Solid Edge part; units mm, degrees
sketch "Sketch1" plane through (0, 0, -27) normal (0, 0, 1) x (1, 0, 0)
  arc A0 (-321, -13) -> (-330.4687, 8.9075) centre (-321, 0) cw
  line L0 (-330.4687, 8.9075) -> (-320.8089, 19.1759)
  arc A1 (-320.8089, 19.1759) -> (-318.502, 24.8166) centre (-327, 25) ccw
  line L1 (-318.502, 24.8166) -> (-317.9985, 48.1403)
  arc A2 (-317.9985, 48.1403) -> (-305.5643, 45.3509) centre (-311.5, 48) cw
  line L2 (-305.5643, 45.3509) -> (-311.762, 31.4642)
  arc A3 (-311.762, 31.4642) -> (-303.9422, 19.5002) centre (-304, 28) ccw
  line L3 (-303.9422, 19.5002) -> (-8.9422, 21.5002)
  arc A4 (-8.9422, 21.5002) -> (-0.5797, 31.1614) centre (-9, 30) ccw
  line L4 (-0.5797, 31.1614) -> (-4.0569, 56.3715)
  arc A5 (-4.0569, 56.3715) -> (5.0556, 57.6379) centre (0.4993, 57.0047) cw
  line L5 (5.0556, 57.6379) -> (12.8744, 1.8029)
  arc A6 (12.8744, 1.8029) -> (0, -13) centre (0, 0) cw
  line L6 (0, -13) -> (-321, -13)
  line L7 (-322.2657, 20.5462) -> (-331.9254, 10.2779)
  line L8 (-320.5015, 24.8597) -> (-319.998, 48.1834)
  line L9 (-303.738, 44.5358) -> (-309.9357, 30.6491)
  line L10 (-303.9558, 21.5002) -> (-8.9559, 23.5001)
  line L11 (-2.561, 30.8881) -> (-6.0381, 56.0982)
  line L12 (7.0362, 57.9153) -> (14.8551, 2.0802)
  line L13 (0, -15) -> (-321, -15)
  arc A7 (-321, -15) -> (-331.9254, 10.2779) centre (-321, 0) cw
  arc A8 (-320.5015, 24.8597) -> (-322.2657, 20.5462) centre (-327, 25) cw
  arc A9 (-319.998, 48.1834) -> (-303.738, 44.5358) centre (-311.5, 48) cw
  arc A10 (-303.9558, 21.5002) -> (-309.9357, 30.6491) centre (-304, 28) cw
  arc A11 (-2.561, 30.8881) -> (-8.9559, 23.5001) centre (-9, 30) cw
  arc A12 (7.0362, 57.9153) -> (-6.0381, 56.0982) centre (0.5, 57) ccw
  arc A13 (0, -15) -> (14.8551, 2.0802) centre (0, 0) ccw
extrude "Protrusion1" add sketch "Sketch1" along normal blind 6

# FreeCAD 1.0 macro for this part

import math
import FreeCAD as App
import Part
import Sketcher

doc = App.newDocument("Part")
body = doc.addObject("PartDesign::Body", "Body")

# Sketch on XY plane
sketch1 = body.newObject("Sketcher::SketchObject", "Sketch")
sketch1.AttachmentSupport = (doc.getObject("XY_Plane"), [""])
sketch1.MapMode = "FlatFace"
sketch1.AttachmentOffset = App.Placement(App.Vector(0, 0, -27), App.Rotation())
sketch1.addGeometry([
    Part.ArcOfCircle(Part.Circle(App.Vector(-327, 25, 0), App.Vector(0, 0, 1), 6.5), math.radians(-43), math.radians(-1)),  # 0
    Part.LineSegment(App.Vector(-322.3, 20.5, 0), App.Vector(-331.9, 10.3, 0)),  # 1
    Part.ArcOfCircle(Part.Circle(App.Vector(-321, 0, 0), App.Vector(0, 0, 1), 15), math.radians(137), math.radians(270)),  # 2
    Part.LineSegment(App.Vector(-321, -15, 0), App.Vector(0, -15, 0)),  # 3
    Part.ArcOfCircle(Part.Circle(App.Vector(0, 0, 0), App.Vector(0, 0, 1), 15), math.radians(-90), math.radians(8)),  # 4
    Part.LineSegment(App.Vector(14.9, 2.1, 0), App.Vector(7, 57.9, 0)),  # 5
    Part.ArcOfCircle(Part.Circle(App.Vector(0.5, 57, 0), App.Vector(0, 0, 1), 6.6), math.radians(8), math.radians(188)),  # 6
    Part.LineSegment(App.Vector(-6, 56.1, 0), App.Vector(-2.6, 30.9, 0)),  # 7
    Part.ArcOfCircle(Part.Circle(App.Vector(-9, 30, 0), App.Vector(0, 0, 1), 6.5), math.radians(-90), math.radians(8)),  # 8
    Part.LineSegment(App.Vector(-9, 23.5, 0), App.Vector(-304, 21.5, 0)),  # 9
    Part.ArcOfCircle(Part.Circle(App.Vector(-304, 28, 0), App.Vector(0, 0, 1), 6.5), math.radians(156), math.radians(270)),  # 10
    Part.LineSegment(App.Vector(-309.9, 30.6, 0), App.Vector(-303.7, 44.5, 0)),  # 11
    Part.ArcOfCircle(Part.Circle(App.Vector(-311.5, 48, 0), App.Vector(0, 0, 1), 8.5), math.radians(-24), math.radians(179)),  # 12
    Part.LineSegment(App.Vector(-320, 48.2, 0), App.Vector(-320.5, 24.9, 0)),  # 13
    Part.LineSegment(App.Vector(0, -13, 0), App.Vector(-321, -13, 0)),  # 14
    Part.ArcOfCircle(Part.Circle(App.Vector(-321, 0, 0), App.Vector(0, 0, 1), 13), math.radians(137), math.radians(270)),  # 15
    Part.LineSegment(App.Vector(-330.5, 8.9, 0), App.Vector(-320.8, 19.2, 0)),  # 16
    Part.ArcOfCircle(Part.Circle(App.Vector(-327, 25, 0), App.Vector(0, 0, 1), 8.5), math.radians(-43), math.radians(-1)),  # 17
    Part.LineSegment(App.Vector(-318.5, 24.8, 0), App.Vector(-318, 48.1, 0)),  # 18
    Part.ArcOfCircle(Part.Circle(App.Vector(-311.5, 48, 0), App.Vector(0, 0, 1), 6.5), math.radians(-24), math.radians(179)),  # 19
    Part.LineSegment(App.Vector(-305.6, 45.4, 0), App.Vector(-311.8, 31.5, 0)),  # 20
    Part.ArcOfCircle(Part.Circle(App.Vector(-304, 28, 0), App.Vector(0, 0, 1), 8.5), math.radians(156), math.radians(270)),  # 21
    Part.LineSegment(App.Vector(-303.9, 19.5, 0), App.Vector(-8.9, 21.5, 0)),  # 22
    Part.ArcOfCircle(Part.Circle(App.Vector(-9, 30, 0), App.Vector(0, 0, 1), 8.5), math.radians(-90), math.radians(8)),  # 23
    Part.LineSegment(App.Vector(-0.6, 31.2, 0), App.Vector(-4.1, 56.4, 0)),  # 24
    Part.ArcOfCircle(Part.Circle(App.Vector(0.5, 57, 0), App.Vector(0, 0, 1), 4.6), math.radians(8), math.radians(188)),  # 25
    Part.LineSegment(App.Vector(5.1, 57.6, 0), App.Vector(12.9, 1.8, 0)),  # 26
    Part.ArcOfCircle(Part.Circle(App.Vector(0, 0, 0), App.Vector(0, 0, 1), 13), math.radians(-90), math.radians(8)),  # 27
], False)
sketch1.addConstraint([
    Sketcher.Constraint("Tangent", 0, 1, 1, 1),
    Sketcher.Constraint("Tangent", 1, 2, 2, 1),
    Sketcher.Constraint("Tangent", 2, 2, 3, 1),
    Sketcher.Constraint("Tangent", 3, 2, 4, 1),
    Sketcher.Constraint("Tangent", 4, 2, 5, 1),
    Sketcher.Constraint("Tangent", 5, 2, 6, 1),
    Sketcher.Constraint("Tangent", 6, 2, 7, 1),
    Sketcher.Constraint("Tangent", 7, 2, 8, 2),
    Sketcher.Constraint("Tangent", 8, 1, 9, 1),
    Sketcher.Constraint("Tangent", 9, 2, 10, 2),
    Sketcher.Constraint("Tangent", 10, 1, 11, 1),
    Sketcher.Constraint("Tangent", 11, 2, 12, 1),
    Sketcher.Constraint("Tangent", 12, 2, 13, 1),
    Sketcher.Constraint("Tangent", 13, 2, 0, 2),
    Sketcher.Constraint("Tangent", 14, 2, 15, 2),
    Sketcher.Constraint("Tangent", 15, 1, 16, 1),
    Sketcher.Constraint("Tangent", 16, 2, 17, 1),
    Sketcher.Constraint("Tangent", 17, 2, 18, 1),
    Sketcher.Constraint("Tangent", 18, 2, 19, 2),
    Sketcher.Constraint("Tangent", 19, 1, 20, 1),
    Sketcher.Constraint("Tangent", 20, 2, 21, 1),
    Sketcher.Constraint("Tangent", 21, 2, 22, 1),
    Sketcher.Constraint("Tangent", 22, 2, 23, 1),
    Sketcher.Constraint("Tangent", 23, 2, 24, 1),
    Sketcher.Constraint("Coincident", 24, 2, 25, 2),
    Sketcher.Constraint("Coincident", 25, 1, 26, 1),
    Sketcher.Constraint("Tangent", 26, 2, 27, 2),
    Sketcher.Constraint("Tangent", 27, 1, 14, 1),
    Sketcher.Constraint("Horizontal", 3),
    Sketcher.Constraint("Horizontal", 14),
    Sketcher.Constraint("Coincident", 4, 3, -1, 1),
    Sketcher.Constraint("Coincident", 27, 3, -1, 1),
    Sketcher.Constraint("Coincident", 15, 3, 2, 3),
    Sketcher.Constraint("Coincident", 17, 3, 0, 3),
    Sketcher.Constraint("Coincident", 19, 3, 12, 3),
    Sketcher.Constraint("Coincident", 21, 3, 10, 3),
    Sketcher.Constraint("Coincident", 23, 3, 8, 3),
    Sketcher.Constraint("Equal", 2, 4),
    Sketcher.Constraint("Equal", 0, 8),
    Sketcher.Constraint("Equal", 8, 10),
    Sketcher.Constraint("Equal", 12, 17),
    Sketcher.Constraint("Equal", 10, 19),
    Sketcher.Constraint("Equal", 17, 21),
    Sketcher.Constraint("Equal", 21, 23),
    Sketcher.Constraint("Parallel", 1, 16),
    Sketcher.Constraint("Parallel", 7, 24),
    Sketcher.Constraint("Parallel", 5, 26),
    Sketcher.Constraint("Horizontal", 9, 2, 22, 2),
    Sketcher.Constraint("Equal", 7, 24),
    Sketcher.Constraint("Equal", 5, 26),
    Sketcher.Constraint("Radius", 2, 15.0),
    Sketcher.Constraint("Radius", 15, 13.0),
    Sketcher.Constraint("Radius", 0, 6.5),
    Sketcher.Constraint("Radius", 6, 6.6),
    Sketcher.Constraint("DistanceX", 3, 1, 3, 2, 321.0),
    Sketcher.Constraint("DistanceX", 0, 3, -1, 1, 327.0),
    Sketcher.Constraint("DistanceY", -1, 1, 0, 3, 25.0),
    Sketcher.Constraint("DistanceY", -1, 1, 6, 3, 57.0),
    Sketcher.Constraint("DistanceX", 8, 3, -1, 1, 9.0),
    Sketcher.Constraint("DistanceY", -1, 1, 8, 3, 30.0),
    Sketcher.Constraint("DistanceX", 10, 3, -1, 1, 304.0),
    Sketcher.Constraint("DistanceY", -1, 1, 12, 3, 48.0),
    Sketcher.Constraint("DistanceX", 12, 3, 6, 3, 312.0),
    Sketcher.Constraint("DistanceX", -1, 1, 6, 3, 0.5),
    Sketcher.Constraint("DistanceX", 25, 3, 5, 2, 6.537),
])
pad1 = body.newObject("PartDesign::Pad", "Pad")
pad1.Profile = sketch1
pad1.Length = 6

doc.recompute()
